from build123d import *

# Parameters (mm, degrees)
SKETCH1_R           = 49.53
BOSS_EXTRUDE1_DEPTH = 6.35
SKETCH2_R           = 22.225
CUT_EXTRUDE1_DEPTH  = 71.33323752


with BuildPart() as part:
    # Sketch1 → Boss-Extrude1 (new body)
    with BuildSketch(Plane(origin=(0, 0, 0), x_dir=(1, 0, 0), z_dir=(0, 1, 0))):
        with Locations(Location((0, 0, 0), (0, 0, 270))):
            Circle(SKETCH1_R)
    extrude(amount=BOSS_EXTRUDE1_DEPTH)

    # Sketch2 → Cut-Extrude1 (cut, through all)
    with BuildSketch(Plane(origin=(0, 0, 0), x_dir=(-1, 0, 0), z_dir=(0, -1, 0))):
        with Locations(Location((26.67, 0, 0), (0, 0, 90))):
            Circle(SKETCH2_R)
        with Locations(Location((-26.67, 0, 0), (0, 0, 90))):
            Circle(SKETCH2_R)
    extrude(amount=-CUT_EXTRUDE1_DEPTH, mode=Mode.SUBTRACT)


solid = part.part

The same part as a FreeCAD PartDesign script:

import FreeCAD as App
import Part
import Sketcher
from FreeCAD import Vector
Q = App.Units.Quantity

doc = App.newDocument("Part")
body = doc.addObject("PartDesign::Body", "Body")

# Sketch on XZ plane
sketch1 = body.newObject("Sketcher::SketchObject", "Sketch")
sketch1.AttachmentSupport = (doc.getObject("XZ_Plane"), [""])
sketch1.MapMode = "FlatFace"
sketch1.addGeometry(Part.Circle(Vector(0, 0, 0), Vector(0, 0, 1), 50), False)
sketch1.addConstraint(Sketcher.Constraint("Coincident", 0, 3, -1, 1))
sketch1.addConstraint(Sketcher.Constraint("Diameter", 0, Q("3.9 in")))
pad1 = body.newObject("PartDesign::Pad", "Pad")
pad1.Profile = sketch1
pad1.Length = Q("0.25 in")
pad1.Reversed = True

# Sketch on XZ plane
sketch2 = body.newObject("Sketcher::SketchObject", "Sketch001")
sketch2.AttachmentSupport = (doc.getObject("XZ_Plane"), [""])
sketch2.MapMode = "FlatFace"
sketch2.addGeometry(Part.Circle(Vector(-27, 0, 0), Vector(0, 0, 1), 22), False)
sketch2.addGeometry(Part.Circle(Vector(27, 0, 0), Vector(0, 0, 1), 22), False)
sketch2.addConstraint(Sketcher.Constraint("Equal", 0, 1))
sketch2.addConstraint(Sketcher.Constraint("Symmetric", 0, 3, 1, 3, -1, 1))
sketch2.addConstraint(Sketcher.Constraint("PointOnObject", 0, 3, -1))
sketch2.addConstraint(Sketcher.Constraint("Diameter", 0, Q("1.75 in")))
sketch2.addConstraint(Sketcher.Constraint("DistanceX", 0, 3, 1, 3, Q("2.1 in")))
pocket1 = body.newObject("PartDesign::Pocket", "Pocket")
pocket1.Profile = sketch2
pocket1.Type = "ThroughAll"

doc.recompute()
